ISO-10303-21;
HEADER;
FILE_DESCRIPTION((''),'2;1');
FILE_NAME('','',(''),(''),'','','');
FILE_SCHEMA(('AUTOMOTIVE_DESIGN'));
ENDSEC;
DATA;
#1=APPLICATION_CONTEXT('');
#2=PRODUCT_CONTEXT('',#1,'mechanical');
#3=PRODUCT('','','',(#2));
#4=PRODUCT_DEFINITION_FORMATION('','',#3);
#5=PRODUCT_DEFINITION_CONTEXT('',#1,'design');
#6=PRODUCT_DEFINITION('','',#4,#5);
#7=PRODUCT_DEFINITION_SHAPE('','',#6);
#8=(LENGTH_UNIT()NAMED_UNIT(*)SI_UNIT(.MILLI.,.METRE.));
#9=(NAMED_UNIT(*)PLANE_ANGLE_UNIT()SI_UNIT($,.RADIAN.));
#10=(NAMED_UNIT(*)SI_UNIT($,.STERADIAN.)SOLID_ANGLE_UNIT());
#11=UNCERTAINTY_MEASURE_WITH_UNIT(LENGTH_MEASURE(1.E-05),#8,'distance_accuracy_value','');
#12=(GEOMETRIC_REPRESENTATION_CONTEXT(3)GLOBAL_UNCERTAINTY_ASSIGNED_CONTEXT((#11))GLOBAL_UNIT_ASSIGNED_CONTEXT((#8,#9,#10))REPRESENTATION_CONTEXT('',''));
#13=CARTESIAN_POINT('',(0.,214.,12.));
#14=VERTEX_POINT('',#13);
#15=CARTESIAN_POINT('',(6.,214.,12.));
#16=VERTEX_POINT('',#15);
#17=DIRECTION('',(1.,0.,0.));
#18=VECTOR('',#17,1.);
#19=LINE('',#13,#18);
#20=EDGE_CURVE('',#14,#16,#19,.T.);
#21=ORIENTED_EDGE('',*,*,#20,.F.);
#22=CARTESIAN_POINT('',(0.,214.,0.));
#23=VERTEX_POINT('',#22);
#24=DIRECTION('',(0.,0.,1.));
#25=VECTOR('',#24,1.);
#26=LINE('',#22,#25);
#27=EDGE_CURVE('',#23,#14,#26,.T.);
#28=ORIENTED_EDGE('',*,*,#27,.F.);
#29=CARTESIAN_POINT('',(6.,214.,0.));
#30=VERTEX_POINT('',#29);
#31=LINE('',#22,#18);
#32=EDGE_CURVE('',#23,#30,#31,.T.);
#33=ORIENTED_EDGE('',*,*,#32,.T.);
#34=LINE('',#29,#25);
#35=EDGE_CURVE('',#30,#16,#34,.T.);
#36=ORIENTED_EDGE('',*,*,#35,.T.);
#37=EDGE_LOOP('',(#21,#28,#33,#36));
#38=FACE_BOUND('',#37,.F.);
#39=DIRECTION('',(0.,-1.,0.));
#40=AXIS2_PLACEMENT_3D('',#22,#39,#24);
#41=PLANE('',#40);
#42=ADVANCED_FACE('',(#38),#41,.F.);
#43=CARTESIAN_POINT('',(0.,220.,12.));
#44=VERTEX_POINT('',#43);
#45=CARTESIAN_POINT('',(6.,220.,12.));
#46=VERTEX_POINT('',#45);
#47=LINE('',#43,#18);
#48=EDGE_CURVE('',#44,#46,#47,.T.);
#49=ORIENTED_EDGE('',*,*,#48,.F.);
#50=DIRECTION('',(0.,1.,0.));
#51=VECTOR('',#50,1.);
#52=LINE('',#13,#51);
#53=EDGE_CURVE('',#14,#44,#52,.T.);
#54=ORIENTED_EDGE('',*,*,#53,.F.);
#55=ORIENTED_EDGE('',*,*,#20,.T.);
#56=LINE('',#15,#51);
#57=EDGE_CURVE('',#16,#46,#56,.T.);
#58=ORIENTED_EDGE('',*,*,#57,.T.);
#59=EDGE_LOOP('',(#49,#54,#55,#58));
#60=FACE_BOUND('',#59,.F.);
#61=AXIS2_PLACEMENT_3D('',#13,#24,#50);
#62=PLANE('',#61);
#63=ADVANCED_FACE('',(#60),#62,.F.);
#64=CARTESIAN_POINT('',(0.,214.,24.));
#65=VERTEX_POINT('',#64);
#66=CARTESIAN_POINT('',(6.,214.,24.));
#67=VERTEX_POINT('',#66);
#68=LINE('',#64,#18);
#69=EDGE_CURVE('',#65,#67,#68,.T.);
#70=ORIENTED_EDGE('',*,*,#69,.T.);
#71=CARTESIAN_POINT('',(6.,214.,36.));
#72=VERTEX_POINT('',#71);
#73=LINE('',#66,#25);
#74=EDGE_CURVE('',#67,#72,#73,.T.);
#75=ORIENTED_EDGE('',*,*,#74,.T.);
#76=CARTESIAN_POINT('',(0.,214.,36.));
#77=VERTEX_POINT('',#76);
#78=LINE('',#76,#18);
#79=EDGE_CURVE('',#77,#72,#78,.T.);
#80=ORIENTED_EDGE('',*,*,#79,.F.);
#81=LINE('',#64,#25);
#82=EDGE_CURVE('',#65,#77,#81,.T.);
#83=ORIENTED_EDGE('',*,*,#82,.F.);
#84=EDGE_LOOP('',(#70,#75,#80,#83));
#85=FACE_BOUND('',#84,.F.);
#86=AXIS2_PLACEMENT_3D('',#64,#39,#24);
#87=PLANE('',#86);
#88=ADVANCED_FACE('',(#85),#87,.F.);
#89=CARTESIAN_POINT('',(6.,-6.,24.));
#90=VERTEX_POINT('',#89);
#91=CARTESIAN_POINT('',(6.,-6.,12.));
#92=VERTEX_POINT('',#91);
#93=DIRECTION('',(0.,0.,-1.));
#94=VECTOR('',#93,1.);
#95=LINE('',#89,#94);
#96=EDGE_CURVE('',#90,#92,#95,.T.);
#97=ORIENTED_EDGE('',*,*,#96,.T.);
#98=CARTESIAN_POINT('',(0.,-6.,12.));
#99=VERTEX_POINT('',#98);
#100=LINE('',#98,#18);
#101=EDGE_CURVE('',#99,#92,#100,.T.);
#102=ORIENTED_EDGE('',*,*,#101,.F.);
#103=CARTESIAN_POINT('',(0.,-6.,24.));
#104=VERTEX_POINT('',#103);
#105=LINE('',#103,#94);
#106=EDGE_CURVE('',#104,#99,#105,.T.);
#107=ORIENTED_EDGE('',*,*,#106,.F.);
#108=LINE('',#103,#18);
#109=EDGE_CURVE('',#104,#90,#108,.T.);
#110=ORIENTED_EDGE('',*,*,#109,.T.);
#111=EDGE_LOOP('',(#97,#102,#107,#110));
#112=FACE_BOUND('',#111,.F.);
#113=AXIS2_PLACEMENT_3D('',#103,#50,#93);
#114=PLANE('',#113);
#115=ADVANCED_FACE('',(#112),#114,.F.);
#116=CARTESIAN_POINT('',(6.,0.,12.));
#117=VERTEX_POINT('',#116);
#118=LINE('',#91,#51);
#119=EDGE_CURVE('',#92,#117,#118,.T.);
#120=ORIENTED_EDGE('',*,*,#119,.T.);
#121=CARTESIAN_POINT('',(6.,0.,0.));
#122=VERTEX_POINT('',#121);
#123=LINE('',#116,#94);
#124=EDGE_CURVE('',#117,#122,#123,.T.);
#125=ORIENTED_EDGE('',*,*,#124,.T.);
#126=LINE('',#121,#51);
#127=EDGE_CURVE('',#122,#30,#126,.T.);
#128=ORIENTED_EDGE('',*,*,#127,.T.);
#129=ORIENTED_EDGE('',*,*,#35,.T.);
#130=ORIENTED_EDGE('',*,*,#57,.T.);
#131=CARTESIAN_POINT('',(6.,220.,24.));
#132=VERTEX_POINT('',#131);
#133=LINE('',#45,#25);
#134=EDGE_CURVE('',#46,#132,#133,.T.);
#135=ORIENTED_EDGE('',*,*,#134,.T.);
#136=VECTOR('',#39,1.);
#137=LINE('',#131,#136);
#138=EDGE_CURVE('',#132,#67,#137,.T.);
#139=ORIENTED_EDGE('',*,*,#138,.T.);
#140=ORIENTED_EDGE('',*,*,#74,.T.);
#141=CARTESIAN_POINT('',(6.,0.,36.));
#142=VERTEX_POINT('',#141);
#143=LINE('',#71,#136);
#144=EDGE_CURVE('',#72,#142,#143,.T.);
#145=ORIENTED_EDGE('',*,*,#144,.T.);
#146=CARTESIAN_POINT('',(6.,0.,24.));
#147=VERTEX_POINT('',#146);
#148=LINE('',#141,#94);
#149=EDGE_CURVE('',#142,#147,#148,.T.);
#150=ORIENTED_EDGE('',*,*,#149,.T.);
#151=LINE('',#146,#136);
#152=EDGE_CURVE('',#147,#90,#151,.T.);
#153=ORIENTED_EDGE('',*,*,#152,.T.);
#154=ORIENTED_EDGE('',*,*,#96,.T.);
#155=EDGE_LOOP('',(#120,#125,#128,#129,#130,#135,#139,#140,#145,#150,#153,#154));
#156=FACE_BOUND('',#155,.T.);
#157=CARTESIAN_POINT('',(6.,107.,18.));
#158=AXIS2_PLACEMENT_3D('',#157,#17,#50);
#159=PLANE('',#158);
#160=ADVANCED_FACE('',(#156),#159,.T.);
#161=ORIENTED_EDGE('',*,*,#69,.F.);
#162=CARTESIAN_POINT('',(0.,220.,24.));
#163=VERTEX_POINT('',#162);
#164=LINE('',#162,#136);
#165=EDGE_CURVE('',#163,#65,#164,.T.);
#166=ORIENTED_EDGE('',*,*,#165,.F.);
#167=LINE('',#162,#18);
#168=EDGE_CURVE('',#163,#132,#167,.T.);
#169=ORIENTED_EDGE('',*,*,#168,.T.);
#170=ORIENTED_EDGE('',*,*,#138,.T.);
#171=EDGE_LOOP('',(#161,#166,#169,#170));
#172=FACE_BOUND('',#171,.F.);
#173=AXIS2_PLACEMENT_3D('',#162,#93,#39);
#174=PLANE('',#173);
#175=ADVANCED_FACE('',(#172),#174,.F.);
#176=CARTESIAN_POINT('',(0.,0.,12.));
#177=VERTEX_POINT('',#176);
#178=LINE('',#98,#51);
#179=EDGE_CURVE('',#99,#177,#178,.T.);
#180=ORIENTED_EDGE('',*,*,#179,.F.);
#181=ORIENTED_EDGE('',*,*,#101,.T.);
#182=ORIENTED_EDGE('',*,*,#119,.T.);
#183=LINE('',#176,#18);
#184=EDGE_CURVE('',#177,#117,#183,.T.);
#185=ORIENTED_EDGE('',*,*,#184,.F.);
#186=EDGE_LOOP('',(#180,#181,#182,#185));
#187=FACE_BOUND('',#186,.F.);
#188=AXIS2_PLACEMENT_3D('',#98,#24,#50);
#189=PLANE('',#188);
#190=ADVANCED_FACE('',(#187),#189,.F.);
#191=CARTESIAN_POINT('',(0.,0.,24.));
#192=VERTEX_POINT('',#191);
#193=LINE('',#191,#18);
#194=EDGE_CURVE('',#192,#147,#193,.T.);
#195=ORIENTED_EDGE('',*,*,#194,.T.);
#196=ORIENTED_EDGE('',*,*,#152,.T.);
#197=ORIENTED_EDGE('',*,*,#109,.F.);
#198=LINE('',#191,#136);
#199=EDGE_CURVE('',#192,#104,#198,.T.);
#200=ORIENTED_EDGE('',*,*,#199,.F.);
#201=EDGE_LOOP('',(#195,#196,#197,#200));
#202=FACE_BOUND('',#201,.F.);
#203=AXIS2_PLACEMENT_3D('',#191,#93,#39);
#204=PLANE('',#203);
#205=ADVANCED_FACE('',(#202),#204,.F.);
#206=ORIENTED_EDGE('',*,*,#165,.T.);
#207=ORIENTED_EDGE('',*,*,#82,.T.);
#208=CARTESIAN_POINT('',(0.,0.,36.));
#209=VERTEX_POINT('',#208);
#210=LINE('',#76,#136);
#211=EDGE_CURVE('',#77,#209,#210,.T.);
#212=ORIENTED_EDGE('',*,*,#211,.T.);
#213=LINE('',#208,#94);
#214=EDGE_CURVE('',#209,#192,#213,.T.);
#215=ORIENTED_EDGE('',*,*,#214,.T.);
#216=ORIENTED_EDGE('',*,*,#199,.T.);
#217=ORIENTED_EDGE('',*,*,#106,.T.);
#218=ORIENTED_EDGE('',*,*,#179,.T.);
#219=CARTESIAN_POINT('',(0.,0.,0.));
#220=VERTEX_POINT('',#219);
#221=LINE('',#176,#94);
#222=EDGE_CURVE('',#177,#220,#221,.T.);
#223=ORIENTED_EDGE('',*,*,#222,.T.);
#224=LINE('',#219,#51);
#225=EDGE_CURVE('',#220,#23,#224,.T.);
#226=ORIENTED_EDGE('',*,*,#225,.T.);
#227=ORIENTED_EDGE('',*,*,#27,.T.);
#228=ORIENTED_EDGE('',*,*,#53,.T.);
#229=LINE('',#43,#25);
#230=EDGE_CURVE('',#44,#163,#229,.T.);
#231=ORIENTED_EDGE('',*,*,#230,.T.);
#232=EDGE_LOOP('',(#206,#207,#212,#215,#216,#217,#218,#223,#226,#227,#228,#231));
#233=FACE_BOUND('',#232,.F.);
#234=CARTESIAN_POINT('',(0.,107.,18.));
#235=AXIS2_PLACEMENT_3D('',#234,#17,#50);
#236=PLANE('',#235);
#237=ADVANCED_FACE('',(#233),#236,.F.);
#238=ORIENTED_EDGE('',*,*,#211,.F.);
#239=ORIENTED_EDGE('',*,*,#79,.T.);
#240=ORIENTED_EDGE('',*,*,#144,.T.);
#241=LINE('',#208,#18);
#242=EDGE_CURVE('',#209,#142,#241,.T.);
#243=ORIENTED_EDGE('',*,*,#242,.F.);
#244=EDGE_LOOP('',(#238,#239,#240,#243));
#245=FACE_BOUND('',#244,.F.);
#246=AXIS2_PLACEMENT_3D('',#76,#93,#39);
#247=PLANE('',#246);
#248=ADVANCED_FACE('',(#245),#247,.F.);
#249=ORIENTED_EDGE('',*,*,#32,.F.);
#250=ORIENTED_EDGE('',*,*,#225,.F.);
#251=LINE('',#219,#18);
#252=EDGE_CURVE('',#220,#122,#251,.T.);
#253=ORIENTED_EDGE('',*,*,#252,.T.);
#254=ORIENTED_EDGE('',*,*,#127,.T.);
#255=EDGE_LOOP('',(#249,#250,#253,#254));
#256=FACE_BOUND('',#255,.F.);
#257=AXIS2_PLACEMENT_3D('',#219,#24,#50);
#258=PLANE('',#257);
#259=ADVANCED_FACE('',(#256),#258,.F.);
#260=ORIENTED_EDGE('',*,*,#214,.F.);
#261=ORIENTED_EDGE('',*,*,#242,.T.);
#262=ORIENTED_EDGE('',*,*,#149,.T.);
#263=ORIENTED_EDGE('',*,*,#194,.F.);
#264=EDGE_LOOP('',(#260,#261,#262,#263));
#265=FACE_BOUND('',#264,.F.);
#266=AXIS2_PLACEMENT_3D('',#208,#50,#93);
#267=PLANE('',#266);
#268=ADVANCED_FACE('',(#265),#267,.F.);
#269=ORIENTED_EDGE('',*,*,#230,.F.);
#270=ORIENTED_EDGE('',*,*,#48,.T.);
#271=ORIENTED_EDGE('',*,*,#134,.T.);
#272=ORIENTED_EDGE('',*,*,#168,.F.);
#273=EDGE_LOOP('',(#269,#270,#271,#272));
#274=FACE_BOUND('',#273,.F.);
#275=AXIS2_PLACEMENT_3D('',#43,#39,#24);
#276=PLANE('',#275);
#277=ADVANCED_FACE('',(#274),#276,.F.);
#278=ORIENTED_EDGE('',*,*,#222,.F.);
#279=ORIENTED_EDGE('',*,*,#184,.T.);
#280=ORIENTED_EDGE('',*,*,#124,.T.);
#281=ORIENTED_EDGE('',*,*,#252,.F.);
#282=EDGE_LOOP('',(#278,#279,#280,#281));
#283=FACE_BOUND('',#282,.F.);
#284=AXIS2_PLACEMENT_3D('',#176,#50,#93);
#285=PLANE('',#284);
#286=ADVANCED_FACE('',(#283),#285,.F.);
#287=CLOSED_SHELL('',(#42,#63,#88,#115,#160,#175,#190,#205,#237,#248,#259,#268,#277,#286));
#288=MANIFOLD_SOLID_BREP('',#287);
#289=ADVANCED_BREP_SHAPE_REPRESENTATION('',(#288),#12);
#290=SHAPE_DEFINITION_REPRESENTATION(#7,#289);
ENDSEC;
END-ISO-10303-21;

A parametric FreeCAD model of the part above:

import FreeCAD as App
import Part
import Sketcher
from FreeCAD import Vector

doc = App.newDocument("Part")
body = doc.addObject("PartDesign::Body", "Body")

# Sketch on YZ plane
sketch1 = doc.addObject("Sketcher::SketchObject", "Sketch")
body.addObject(sketch1)
sketch1.AttachmentSupport = (doc.YZ_Plane, [""])
sketch1.MapMode = "FlatFace"
sketch1.addGeometry(Part.LineSegment(Vector(0, 0, 0), Vector(214, 0, 0)), False)
sketch1.addGeometry(Part.LineSegment(Vector(214, 0, 0), Vector(214, 12, 0)), False)
sketch1.addGeometry(Part.LineSegment(Vector(214, 12, 0), Vector(220, 12, 0)), False)
sketch1.addGeometry(Part.LineSegment(Vector(220, 12, 0), Vector(220, 24, 0)), False)
sketch1.addGeometry(Part.LineSegment(Vector(220, 24, 0), Vector(214, 24, 0)), False)
sketch1.addGeometry(Part.LineSegment(Vector(214, 24, 0), Vector(214, 36, 0)), False)
sketch1.addGeometry(Part.LineSegment(Vector(214, 36, 0), Vector(0, 36, 0)), False)
sketch1.addGeometry(Part.LineSegment(Vector(0, 36, 0), Vector(0, 24, 0)), False)
sketch1.addGeometry(Part.LineSegment(Vector(0, 24, 0), Vector(-6, 24, 0)), False)
sketch1.addGeometry(Part.LineSegment(Vector(-6, 24, 0), Vector(-6, 12, 0)), False)
sketch1.addGeometry(Part.LineSegment(Vector(-6, 12, 0), Vector(0, 12, 0)), False)
sketch1.addGeometry(Part.LineSegment(Vector(0, 12, 0), Vector(0, 0, 0)), False)
sketch1.addConstraint(Sketcher.Constraint("Coincident", 0, 2, 1, 1))
sketch1.addConstraint(Sketcher.Constraint("Coincident", 1, 2, 2, 1))
sketch1.addConstraint(Sketcher.Constraint("Coincident", 2, 2, 3, 1))
sketch1.addConstraint(Sketcher.Constraint("Coincident", 3, 2, 4, 1))
sketch1.addConstraint(Sketcher.Constraint("Coincident", 4, 2, 5, 1))
sketch1.addConstraint(Sketcher.Constraint("Coincident", 5, 2, 6, 1))
sketch1.addConstraint(Sketcher.Constraint("Coincident", 6, 2, 7, 1))
sketch1.addConstraint(Sketcher.Constraint("Coincident", 7, 2, 8, 1))
sketch1.addConstraint(Sketcher.Constraint("Coincident", 8, 2, 9, 1))
sketch1.addConstraint(Sketcher.Constraint("Coincident", 9, 2, 10, 1))
sketch1.addConstraint(Sketcher.Constraint("Coincident", 10, 2, 11, 1))
sketch1.addConstraint(Sketcher.Constraint("Coincident", 11, 2, 0, 1))
sketch1.addConstraint(Sketcher.Constraint("Horizontal", 0))
sketch1.addConstraint(Sketcher.Constraint("Vertical", 1))
sketch1.addConstraint(Sketcher.Constraint("Horizontal", 2))
sketch1.addConstraint(Sketcher.Constraint("Vertical", 3))
sketch1.addConstraint(Sketcher.Constraint("Horizontal", 4))
sketch1.addConstraint(Sketcher.Constraint("Vertical", 5))
sketch1.addConstraint(Sketcher.Constraint("Horizontal", 6))
sketch1.addConstraint(Sketcher.Constraint("Vertical", 7))
sketch1.addConstraint(Sketcher.Constraint("Horizontal", 8))
sketch1.addConstraint(Sketcher.Constraint("Vertical", 9))
sketch1.addConstraint(Sketcher.Constraint("Horizontal", 10))
sketch1.addConstraint(Sketcher.Constraint("Vertical", 11))
sketch1.addConstraint(Sketcher.Constraint("Coincident", 11, 2, -1, 1))
sketch1.addConstraint(Sketcher.Constraint("PointOnObject", 6, 2, -2))
sketch1.addConstraint(Sketcher.Constraint("Horizontal", 4, 2, 7, 2))
sketch1.addConstraint(Sketcher.Constraint("Horizontal", 2, 2, 9, 2))
sketch1.addConstraint(Sketcher.Constraint("Vertical", 1, 2, 4, 2))
sketch1.addConstraint(Sketcher.Constraint("Equal", 4, 8))
sketch1.addConstraint(Sketcher.Constraint("Equal", 1, 3))
sketch1.addConstraint(Sketcher.Constraint("Equal", 3, 5))
sketch1.addConstraint(Sketcher.Constraint("DistanceX", 0, 1, 0, 2, 214.0))
sketch1.addConstraint(Sketcher.Constraint("DistanceX", 2, 1, 2, 2, 6.0))
sketch1.addConstraint(Sketcher.Constraint("DistanceY", 1, 1, 1, 2, 12.0))
pad1 = doc.addObject("PartDesign::Pad", "Pad")
body.addObject(pad1)
pad1.Profile = sketch1
pad1.Length = 6

doc.recompute()
